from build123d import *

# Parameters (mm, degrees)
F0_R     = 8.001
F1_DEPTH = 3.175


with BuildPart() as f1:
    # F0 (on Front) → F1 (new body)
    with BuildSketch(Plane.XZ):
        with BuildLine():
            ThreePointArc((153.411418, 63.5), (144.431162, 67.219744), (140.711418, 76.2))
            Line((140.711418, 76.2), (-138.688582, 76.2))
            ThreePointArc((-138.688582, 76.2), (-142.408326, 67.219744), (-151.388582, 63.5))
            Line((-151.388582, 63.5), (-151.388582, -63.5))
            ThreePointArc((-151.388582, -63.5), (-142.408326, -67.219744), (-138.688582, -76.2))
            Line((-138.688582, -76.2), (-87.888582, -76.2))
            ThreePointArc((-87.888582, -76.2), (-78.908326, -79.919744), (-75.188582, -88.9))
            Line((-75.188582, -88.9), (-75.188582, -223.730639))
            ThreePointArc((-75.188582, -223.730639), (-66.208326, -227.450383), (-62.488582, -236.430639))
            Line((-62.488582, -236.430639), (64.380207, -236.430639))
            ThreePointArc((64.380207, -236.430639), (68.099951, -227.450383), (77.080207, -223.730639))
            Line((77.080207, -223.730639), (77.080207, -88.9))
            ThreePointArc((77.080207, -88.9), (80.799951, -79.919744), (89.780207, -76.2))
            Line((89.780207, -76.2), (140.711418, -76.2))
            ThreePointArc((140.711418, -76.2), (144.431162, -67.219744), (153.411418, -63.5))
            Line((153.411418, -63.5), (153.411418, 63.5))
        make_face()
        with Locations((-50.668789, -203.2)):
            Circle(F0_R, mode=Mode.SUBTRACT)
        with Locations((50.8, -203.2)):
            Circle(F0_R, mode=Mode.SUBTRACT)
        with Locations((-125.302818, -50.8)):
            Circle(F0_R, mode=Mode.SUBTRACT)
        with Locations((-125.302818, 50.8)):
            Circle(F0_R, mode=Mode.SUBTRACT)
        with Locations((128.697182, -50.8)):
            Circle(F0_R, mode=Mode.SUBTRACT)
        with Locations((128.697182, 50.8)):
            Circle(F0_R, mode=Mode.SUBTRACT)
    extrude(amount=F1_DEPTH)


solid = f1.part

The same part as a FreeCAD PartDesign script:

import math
import FreeCAD as App
import Part
import Sketcher
Q = App.Units.Quantity

doc = App.newDocument("Part")
body = doc.addObject("PartDesign::Body", "Body")

sketch1 = body.newObject("Sketcher::SketchObject", "Sketch")
sketch1.AttachmentSupport = (doc.getObject("XZ_Plane"), [""])
sketch1.MapMode = "FlatFace"
sketch1.addGeometry(Part.ArcOfCircle(Part.Circle(App.Vector(153.411418, 76.2, 0), App.Vector(0, 0, 1), 12.7), math.radians(-179.999998), math.radians(-90.000002)), False)
sketch1.addGeometry(Part.LineSegment(App.Vector(140.711418, 76.2, 0), App.Vector(-138.688582, 76.2, 0)), False)
sketch1.addGeometry(Part.ArcOfCircle(Part.Circle(App.Vector(-151.388582, 76.2, 0), App.Vector(0, 0, 1), 12.7), math.radians(-89.999998), math.radians(-0.000002)), False)
sketch1.addGeometry(Part.LineSegment(App.Vector(-151.388582, 63.5, 0), App.Vector(-151.388582, -63.5, 0)), False)
sketch1.addGeometry(Part.ArcOfCircle(Part.Circle(App.Vector(-151.388582, -76.2, 0), App.Vector(0, 0, 1), 12.7), math.radians(0.000002), math.radians(89.999998)), False)
sketch1.addGeometry(Part.LineSegment(App.Vector(-138.688582, -76.2, 0), App.Vector(-87.888582, -76.2, 0)), False)
sketch1.addGeometry(Part.ArcOfCircle(Part.Circle(App.Vector(-87.888582, -88.9, 0), App.Vector(0, 0, 1), 12.7), math.radians(0.000002), math.radians(89.999998)), False)
sketch1.addGeometry(Part.LineSegment(App.Vector(-75.188582, -88.9, 0), App.Vector(-75.188582, -223.730639, 0)), False)
sketch1.addGeometry(Part.ArcOfCircle(Part.Circle(App.Vector(-75.188582, -236.430639, 0), App.Vector(0, 0, 1), 12.7), math.radians(0.000002), math.radians(89.999998)), False)
sketch1.addGeometry(Part.LineSegment(App.Vector(-62.488582, -236.430639, 0), App.Vector(64.380207, -236.430639, 0)), False)
sketch1.addGeometry(Part.ArcOfCircle(Part.Circle(App.Vector(77.080207, -236.430639, 0), App.Vector(0, 0, 1), 12.7), math.radians(90.000002), math.radians(179.999998)), False)
sketch1.addGeometry(Part.LineSegment(App.Vector(77.080207, -223.730639, 0), App.Vector(77.080207, -88.9, 0)), False)
sketch1.addGeometry(Part.ArcOfCircle(Part.Circle(App.Vector(89.780207, -88.9, 0), App.Vector(0, 0, 1), 12.7), math.radians(90.000002), math.radians(179.999998)), False)
sketch1.addGeometry(Part.LineSegment(App.Vector(89.780207, -76.2, 0), App.Vector(140.711418, -76.2, 0)), False)
sketch1.addGeometry(Part.ArcOfCircle(Part.Circle(App.Vector(153.411418, -76.2, 0), App.Vector(0, 0, 1), 12.7), math.radians(90.000002), math.radians(179.999998)), False)
sketch1.addGeometry(Part.LineSegment(App.Vector(153.411418, -63.5, 0), App.Vector(153.411418, 63.5, 0)), False)
sketch1.addGeometry(Part.Circle(App.Vector(-50.668789, -203.2, 0), App.Vector(0, 0, 1), 8.001), False)
sketch1.addGeometry(Part.Circle(App.Vector(50.8, -203.2, 0), App.Vector(0, 0, 1), 8.001), False)
sketch1.addGeometry(Part.Circle(App.Vector(-125.302818, -50.8, 0), App.Vector(0, 0, 1), 8.001), False)
sketch1.addGeometry(Part.Circle(App.Vector(-125.302818, 50.8, 0), App.Vector(0, 0, 1), 8.001), False)
sketch1.addGeometry(Part.Circle(App.Vector(128.697182, -50.8, 0), App.Vector(0, 0, 1), 8.001), False)
sketch1.addGeometry(Part.Circle(App.Vector(128.697182, 50.8, 0), App.Vector(0, 0, 1), 8.001), False)
sketch1.addConstraint(Sketcher.Constraint("Coincident", 0, 1, 1, 1))
sketch1.addConstraint(Sketcher.Constraint("Coincident", 1, 2, 2, 2))
sketch1.addConstraint(Sketcher.Constraint("Coincident", 2, 1, 3, 1))
sketch1.addConstraint(Sketcher.Constraint("Coincident", 3, 2, 4, 2))
sketch1.addConstraint(Sketcher.Constraint("Coincident", 4, 1, 5, 1))
sketch1.addConstraint(Sketcher.Constraint("Tangent", 5, 2, 6, 2))
sketch1.addConstraint(Sketcher.Constraint("Tangent", 6, 1, 7, 1))
sketch1.addConstraint(Sketcher.Constraint("Coincident", 7, 2, 8, 2))
sketch1.addConstraint(Sketcher.Constraint("Coincident", 8, 1, 9, 1))
sketch1.addConstraint(Sketcher.Constraint("Coincident", 9, 2, 10, 2))
sketch1.addConstraint(Sketcher.Constraint("Coincident", 10, 1, 11, 1))
sketch1.addConstraint(Sketcher.Constraint("Tangent", 11, 2, 12, 2))
sketch1.addConstraint(Sketcher.Constraint("Tangent", 12, 1, 13, 1))
sketch1.addConstraint(Sketcher.Constraint("Coincident", 13, 2, 14, 2))
sketch1.addConstraint(Sketcher.Constraint("Coincident", 14, 1, 15, 1))
sketch1.addConstraint(Sketcher.Constraint("Coincident", 15, 2, 0, 2))
sketch1.addConstraint(Sketcher.Constraint("Horizontal", 1))
sketch1.addConstraint(Sketcher.Constraint("Vertical", 3))
sketch1.addConstraint(Sketcher.Constraint("Horizontal", 5))
sketch1.addConstraint(Sketcher.Constraint("Vertical", 7))
sketch1.addConstraint(Sketcher.Constraint("Horizontal", 9))
sketch1.addConstraint(Sketcher.Constraint("Vertical", 11))
sketch1.addConstraint(Sketcher.Constraint("Horizontal", 13))
sketch1.addConstraint(Sketcher.Constraint("Vertical", 15))
sketch1.addConstraint(Sketcher.Constraint("Equal", 0, 2))
sketch1.addConstraint(Sketcher.Constraint("Equal", 2, 4))
sketch1.addConstraint(Sketcher.Constraint("Equal", 4, 6))
sketch1.addConstraint(Sketcher.Constraint("Equal", 6, 8))
sketch1.addConstraint(Sketcher.Constraint("Equal", 8, 10))
sketch1.addConstraint(Sketcher.Constraint("Equal", 10, 12))
sketch1.addConstraint(Sketcher.Constraint("Equal", 12, 14))
sketch1.addConstraint(Sketcher.Constraint("Equal", 16, 17))
sketch1.addConstraint(Sketcher.Constraint("Equal", 17, 18))
sketch1.addConstraint(Sketcher.Constraint("Equal", 18, 19))
sketch1.addConstraint(Sketcher.Constraint("Equal", 19, 20))
sketch1.addConstraint(Sketcher.Constraint("Equal", 20, 21))
sketch1.addConstraint(Sketcher.Constraint("Symmetric", 2, 3, 4, 3, -1))
sketch1.addConstraint(Sketcher.Constraint("Symmetric", 0, 3, 14, 3, -1))
sketch1.addConstraint(Sketcher.Constraint("Symmetric", 18, 3, 19, 3, -1))
sketch1.addConstraint(Sketcher.Constraint("Symmetric", 20, 3, 21, 3, -1))
sketch1.addConstraint(Sketcher.Constraint("Horizontal", 0, 3, 2, 3))
sketch1.addConstraint(Sketcher.Constraint("Horizontal", 8, 3, 10, 3))
sketch1.addConstraint(Sketcher.Constraint("Horizontal", 6, 3, 12, 3))
sketch1.addConstraint(Sketcher.Constraint("Horizontal", 16, 3, 17, 3))
sketch1.addConstraint(Sketcher.Constraint("Horizontal", 18, 3, 20, 3))
sketch1.addConstraint(Sketcher.Constraint("Horizontal", 2, 3, 0, 1))
sketch1.addConstraint(Sketcher.Constraint("Horizontal", 14, 3, 4, 1))
sketch1.addConstraint(Sketcher.Constraint("Horizontal", 10, 3, 8, 1))
sketch1.addConstraint(Sketcher.Constraint("Vertical", 4, 3, 2, 1))
sketch1.addConstraint(Sketcher.Constraint("Vertical", 8, 3, 6, 1))
sketch1.addConstraint(Sketcher.Constraint("Vertical", 0, 3, 14, 1))
sketch1.addConstraint(Sketcher.Constraint("Radius", 0, Q("0.5 in")))
sketch1.addConstraint(Sketcher.Constraint("Diameter", 16, Q("0.63 in")))
sketch1.addConstraint(Sketcher.Constraint("DistanceX", 1, 2, 1, 1, Q("11 in")))
sketch1.addConstraint(Sketcher.Constraint("DistanceX", 5, 1, 5, 2, Q("2 in")))
sketch1.addConstraint(Sketcher.Constraint("DistanceY", 3, 2, 3, 1, Q("5 in")))
sketch1.addConstraint(Sketcher.Constraint("DistanceY", 16, 3, -1, 1, Q("8 in")))
sketch1.addConstraint(Sketcher.Constraint("DistanceX", -1, 1, 17, 3, Q("2 in")))
sketch1.addConstraint(Sketcher.Constraint("DistanceY", 18, 3, -1, 1, Q("2 in")))
sketch1.addConstraint(Sketcher.Constraint("DistanceX", 19, 3, 21, 3, Q("10 in")))
sketch1.addConstraint(Sketcher.Constraint("DistanceX", 10, 3, 12, 3, Q("0.5 in")))
sketch1.addConstraint(Sketcher.Constraint("DistanceX", 9, 1, 9, 2, 126.868789))
sketch1.addConstraint(Sketcher.Constraint("DistanceY", 7, 2, 7, 1, 134.830639))
sketch1.addConstraint(Sketcher.Constraint("DistanceX", -1, 1, 0, 3, 153.411418))
sketch1.addConstraint(Sketcher.Constraint("DistanceX", 16, 3, -1, 1, 50.668789))
sketch1.addConstraint(Sketcher.Constraint("DistanceX", 18, 3, -1, 1, 125.302818))
pad1 = body.newObject("PartDesign::Pad", "Pad")
pad1.Profile = sketch1
pad1.Length = Q("0.125 in")

doc.recompute()
